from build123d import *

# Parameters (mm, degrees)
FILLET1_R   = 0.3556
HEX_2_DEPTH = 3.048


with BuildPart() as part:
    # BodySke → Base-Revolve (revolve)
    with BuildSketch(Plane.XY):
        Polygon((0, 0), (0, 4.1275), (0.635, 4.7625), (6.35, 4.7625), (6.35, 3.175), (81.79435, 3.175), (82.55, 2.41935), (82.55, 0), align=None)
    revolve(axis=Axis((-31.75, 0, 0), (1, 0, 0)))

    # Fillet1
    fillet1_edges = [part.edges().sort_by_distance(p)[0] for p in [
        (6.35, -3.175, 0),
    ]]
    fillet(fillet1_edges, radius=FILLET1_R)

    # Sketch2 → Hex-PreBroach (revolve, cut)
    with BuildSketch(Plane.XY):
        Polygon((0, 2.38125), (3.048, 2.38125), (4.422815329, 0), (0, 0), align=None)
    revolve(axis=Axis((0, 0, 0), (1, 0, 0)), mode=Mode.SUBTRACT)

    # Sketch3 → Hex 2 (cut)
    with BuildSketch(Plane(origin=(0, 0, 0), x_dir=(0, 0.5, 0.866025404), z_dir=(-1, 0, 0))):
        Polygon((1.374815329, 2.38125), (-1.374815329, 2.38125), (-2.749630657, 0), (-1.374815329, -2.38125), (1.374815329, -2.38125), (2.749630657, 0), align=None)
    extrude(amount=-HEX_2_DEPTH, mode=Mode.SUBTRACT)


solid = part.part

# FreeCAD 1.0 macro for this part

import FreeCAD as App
import Part
import Sketcher
from FreeCAD import Vector
Q = App.Units.Quantity


def edges_at(feature, points):
    """Names of the edges that pass closest to the given points."""
    edges = feature.Shape.Edges
    near = lambda p: min(range(len(edges)), key=lambda i: edges[i].distToShape(Part.Vertex(*p))[0])
    return sorted({f"Edge{near(p) + 1}" for p in points})


def add_polygon(sketch, points):
    """Adds a closed chain of lines whose ends are joined by coincident constraints."""
    first, n = sketch.GeometryCount, len(points)
    for a, b in zip(points, points[1:] + points[:1]):
        sketch.addGeometry(Part.LineSegment(App.Vector(*a, 0), App.Vector(*b, 0)), False)
    for i in range(n):
        sketch.addConstraint(Sketcher.Constraint("Coincident", first + i, 2, first + (i + 1) % n, 1))

doc = App.newDocument("Part")
params = doc.addObject("Spreadsheet::Sheet", "Params")
for row, (alias, value) in enumerate([
    ("sketch1_width", "3.25 in"),
    ("sketch1_width2", "0.225 in"),
    ("sketch1_height", "0.0625 in"),
    ("revolution_angle", "360 deg"),
    ("fillet_radius", "0.014 in"),
    ("sketch2_width", "0.12 in"),
    ("sketch2_height", "0.09375 in"),
    ("groove_angle", "360 deg"),
    ("pocket1_length", "0.12 in"),
], start=1):
    params.set(f"A{row}", alias)
    params.set(f"B{row}", "=" + value)
    params.setAlias(f"B{row}", alias)

body = doc.addObject("PartDesign::Body", "Body")

sketch1 = doc.addObject("Sketcher::SketchObject", "Sketch")
body.addObject(sketch1)
sketch1.AttachmentSupport = (doc.XY_Plane, [""])
sketch1.MapMode = "FlatFace"
add_polygon(sketch1, [(0, 4.1), (0, 0), (82.5, 0), (82.5, 2.4), (81.8, 3.2), (6.3, 3.2), (6.3, 4.8), (0.6, 4.8)])
sketch1.addConstraint([
    Sketcher.Constraint("Vertical", 0),
    Sketcher.Constraint("Horizontal", 1),
    Sketcher.Constraint("Vertical", 2),
    Sketcher.Constraint("Horizontal", 4),
    Sketcher.Constraint("Vertical", 5),
    Sketcher.Constraint("Horizontal", 6),
    Sketcher.Constraint("Coincident", 0, 2, -1, 1),
    Sketcher.Constraint("Perpendicular", 3, 7),
    Sketcher.Constraint("Angle", 3, Q("135 deg")),
    Sketcher.Constraint("DistanceX", 4, 2, 2, 2, Q("3 in")),
    Sketcher.Constraint("DistanceX", 1, 1, 1, 2, Q("3.25 in")),
    Sketcher.Constraint("DistanceX", 6, 2, 6, 1, Q("0.225 in")),
    Sketcher.Constraint("DistanceY", 5, 1, 5, 2, Q("0.0625 in")),
    Sketcher.Constraint("DistanceY", 0, 2, 0, 1, Q("0.1625 in")),
    Sketcher.Constraint("DistanceX", 4, 2, 4, 1, Q("75.44435 mm")),
])
sketch1.setExpression("Constraints[18]", "Params.sketch1_width")
sketch1.setExpression("Constraints[19]", "Params.sketch1_width2")
sketch1.setExpression("Constraints[20]", "Params.sketch1_height")
revolution = doc.addObject("PartDesign::Revolution", "Revolution")
body.addObject(revolution)
revolution.Profile = sketch1
revolution.ReferenceAxis = (sketch1, ["H_Axis"])
revolution.setExpression("Angle", "Params.revolution_angle")
doc.recompute()

fillet = doc.addObject("PartDesign::Fillet", "Fillet")
body.addObject(fillet)
fillet.Base = (revolution, edges_at(revolution, [(6.35, -3.175, 0)]))
fillet.setExpression("Radius", "Params.fillet_radius")

sketch2 = doc.addObject("Sketcher::SketchObject", "Sketch001")
body.addObject(sketch2)
sketch2.AttachmentSupport = (doc.XY_Plane, [""])
sketch2.MapMode = "FlatFace"
add_polygon(sketch2, [(3, 2.4), (0, 2.4), (0, 0), (4.4, 0)])
sketch2.addConstraint([
    Sketcher.Constraint("Horizontal", 0),
    Sketcher.Constraint("Vertical", 1),
    Sketcher.Constraint("Horizontal", 2),
    Sketcher.Constraint("Coincident", 1, 2, -1, 1),
    Sketcher.Constraint("Angle", 3, Q("120 deg")),
    Sketcher.Constraint("DistanceX", 0, 2, 0, 1, Q("0.12 in")),
    Sketcher.Constraint("DistanceY", 1, 2, 1, 1, Q("0.09375 in")),
])
sketch2.setExpression("Constraints[9]", "Params.sketch2_width")
sketch2.setExpression("Constraints[10]", "Params.sketch2_height")
groove = doc.addObject("PartDesign::Groove", "Groove")
body.addObject(groove)
groove.Profile = sketch2
groove.ReferenceAxis = (sketch2, ["H_Axis"])
groove.setExpression("Angle", "Params.groove_angle")

sketch3 = doc.addObject("Sketcher::SketchObject", "Sketch002")
body.addObject(sketch3)
sketch3.AttachmentSupport = (doc.YZ_Plane, [""])
sketch3.MapMode = "FlatFace"
add_polygon(sketch3, [(2.7, 0), (1.4, -2.4), (-1.4, -2.4), (-2.7, 0), (-1.4, 2.4), (1.4, 2.4)])
sketch3.addConstraint([
    Sketcher.Constraint("Horizontal", 1),
    Sketcher.Constraint("Horizontal", 4),
    Sketcher.Constraint("Symmetric", 0, 2, 3, 2, -1, 1),
    Sketcher.Constraint("Symmetric", 2, 2, 5, 2, -1, 1),
    Sketcher.Constraint("PointOnObject", 2, 2, -1),
    Sketcher.Constraint("Parallel", 2, 5),
    Sketcher.Constraint("Vertical", 1, 2, 3, 2),
    Sketcher.Constraint("Angle", 0, Q("-120 deg")),
    Sketcher.Constraint("DistanceY", 0, 2, -1, 1, Q("0.09375 in")),
    Sketcher.Constraint("DistanceX", 1, 2, 1, 1, Q("2.749631 mm")),
])
pocket1 = doc.addObject("PartDesign::Pocket", "Pocket")
body.addObject(pocket1)
pocket1.Profile = sketch3
pocket1.setExpression("Length", "Params.pocket1_length")
pocket1.Reversed = True

doc.recompute()
